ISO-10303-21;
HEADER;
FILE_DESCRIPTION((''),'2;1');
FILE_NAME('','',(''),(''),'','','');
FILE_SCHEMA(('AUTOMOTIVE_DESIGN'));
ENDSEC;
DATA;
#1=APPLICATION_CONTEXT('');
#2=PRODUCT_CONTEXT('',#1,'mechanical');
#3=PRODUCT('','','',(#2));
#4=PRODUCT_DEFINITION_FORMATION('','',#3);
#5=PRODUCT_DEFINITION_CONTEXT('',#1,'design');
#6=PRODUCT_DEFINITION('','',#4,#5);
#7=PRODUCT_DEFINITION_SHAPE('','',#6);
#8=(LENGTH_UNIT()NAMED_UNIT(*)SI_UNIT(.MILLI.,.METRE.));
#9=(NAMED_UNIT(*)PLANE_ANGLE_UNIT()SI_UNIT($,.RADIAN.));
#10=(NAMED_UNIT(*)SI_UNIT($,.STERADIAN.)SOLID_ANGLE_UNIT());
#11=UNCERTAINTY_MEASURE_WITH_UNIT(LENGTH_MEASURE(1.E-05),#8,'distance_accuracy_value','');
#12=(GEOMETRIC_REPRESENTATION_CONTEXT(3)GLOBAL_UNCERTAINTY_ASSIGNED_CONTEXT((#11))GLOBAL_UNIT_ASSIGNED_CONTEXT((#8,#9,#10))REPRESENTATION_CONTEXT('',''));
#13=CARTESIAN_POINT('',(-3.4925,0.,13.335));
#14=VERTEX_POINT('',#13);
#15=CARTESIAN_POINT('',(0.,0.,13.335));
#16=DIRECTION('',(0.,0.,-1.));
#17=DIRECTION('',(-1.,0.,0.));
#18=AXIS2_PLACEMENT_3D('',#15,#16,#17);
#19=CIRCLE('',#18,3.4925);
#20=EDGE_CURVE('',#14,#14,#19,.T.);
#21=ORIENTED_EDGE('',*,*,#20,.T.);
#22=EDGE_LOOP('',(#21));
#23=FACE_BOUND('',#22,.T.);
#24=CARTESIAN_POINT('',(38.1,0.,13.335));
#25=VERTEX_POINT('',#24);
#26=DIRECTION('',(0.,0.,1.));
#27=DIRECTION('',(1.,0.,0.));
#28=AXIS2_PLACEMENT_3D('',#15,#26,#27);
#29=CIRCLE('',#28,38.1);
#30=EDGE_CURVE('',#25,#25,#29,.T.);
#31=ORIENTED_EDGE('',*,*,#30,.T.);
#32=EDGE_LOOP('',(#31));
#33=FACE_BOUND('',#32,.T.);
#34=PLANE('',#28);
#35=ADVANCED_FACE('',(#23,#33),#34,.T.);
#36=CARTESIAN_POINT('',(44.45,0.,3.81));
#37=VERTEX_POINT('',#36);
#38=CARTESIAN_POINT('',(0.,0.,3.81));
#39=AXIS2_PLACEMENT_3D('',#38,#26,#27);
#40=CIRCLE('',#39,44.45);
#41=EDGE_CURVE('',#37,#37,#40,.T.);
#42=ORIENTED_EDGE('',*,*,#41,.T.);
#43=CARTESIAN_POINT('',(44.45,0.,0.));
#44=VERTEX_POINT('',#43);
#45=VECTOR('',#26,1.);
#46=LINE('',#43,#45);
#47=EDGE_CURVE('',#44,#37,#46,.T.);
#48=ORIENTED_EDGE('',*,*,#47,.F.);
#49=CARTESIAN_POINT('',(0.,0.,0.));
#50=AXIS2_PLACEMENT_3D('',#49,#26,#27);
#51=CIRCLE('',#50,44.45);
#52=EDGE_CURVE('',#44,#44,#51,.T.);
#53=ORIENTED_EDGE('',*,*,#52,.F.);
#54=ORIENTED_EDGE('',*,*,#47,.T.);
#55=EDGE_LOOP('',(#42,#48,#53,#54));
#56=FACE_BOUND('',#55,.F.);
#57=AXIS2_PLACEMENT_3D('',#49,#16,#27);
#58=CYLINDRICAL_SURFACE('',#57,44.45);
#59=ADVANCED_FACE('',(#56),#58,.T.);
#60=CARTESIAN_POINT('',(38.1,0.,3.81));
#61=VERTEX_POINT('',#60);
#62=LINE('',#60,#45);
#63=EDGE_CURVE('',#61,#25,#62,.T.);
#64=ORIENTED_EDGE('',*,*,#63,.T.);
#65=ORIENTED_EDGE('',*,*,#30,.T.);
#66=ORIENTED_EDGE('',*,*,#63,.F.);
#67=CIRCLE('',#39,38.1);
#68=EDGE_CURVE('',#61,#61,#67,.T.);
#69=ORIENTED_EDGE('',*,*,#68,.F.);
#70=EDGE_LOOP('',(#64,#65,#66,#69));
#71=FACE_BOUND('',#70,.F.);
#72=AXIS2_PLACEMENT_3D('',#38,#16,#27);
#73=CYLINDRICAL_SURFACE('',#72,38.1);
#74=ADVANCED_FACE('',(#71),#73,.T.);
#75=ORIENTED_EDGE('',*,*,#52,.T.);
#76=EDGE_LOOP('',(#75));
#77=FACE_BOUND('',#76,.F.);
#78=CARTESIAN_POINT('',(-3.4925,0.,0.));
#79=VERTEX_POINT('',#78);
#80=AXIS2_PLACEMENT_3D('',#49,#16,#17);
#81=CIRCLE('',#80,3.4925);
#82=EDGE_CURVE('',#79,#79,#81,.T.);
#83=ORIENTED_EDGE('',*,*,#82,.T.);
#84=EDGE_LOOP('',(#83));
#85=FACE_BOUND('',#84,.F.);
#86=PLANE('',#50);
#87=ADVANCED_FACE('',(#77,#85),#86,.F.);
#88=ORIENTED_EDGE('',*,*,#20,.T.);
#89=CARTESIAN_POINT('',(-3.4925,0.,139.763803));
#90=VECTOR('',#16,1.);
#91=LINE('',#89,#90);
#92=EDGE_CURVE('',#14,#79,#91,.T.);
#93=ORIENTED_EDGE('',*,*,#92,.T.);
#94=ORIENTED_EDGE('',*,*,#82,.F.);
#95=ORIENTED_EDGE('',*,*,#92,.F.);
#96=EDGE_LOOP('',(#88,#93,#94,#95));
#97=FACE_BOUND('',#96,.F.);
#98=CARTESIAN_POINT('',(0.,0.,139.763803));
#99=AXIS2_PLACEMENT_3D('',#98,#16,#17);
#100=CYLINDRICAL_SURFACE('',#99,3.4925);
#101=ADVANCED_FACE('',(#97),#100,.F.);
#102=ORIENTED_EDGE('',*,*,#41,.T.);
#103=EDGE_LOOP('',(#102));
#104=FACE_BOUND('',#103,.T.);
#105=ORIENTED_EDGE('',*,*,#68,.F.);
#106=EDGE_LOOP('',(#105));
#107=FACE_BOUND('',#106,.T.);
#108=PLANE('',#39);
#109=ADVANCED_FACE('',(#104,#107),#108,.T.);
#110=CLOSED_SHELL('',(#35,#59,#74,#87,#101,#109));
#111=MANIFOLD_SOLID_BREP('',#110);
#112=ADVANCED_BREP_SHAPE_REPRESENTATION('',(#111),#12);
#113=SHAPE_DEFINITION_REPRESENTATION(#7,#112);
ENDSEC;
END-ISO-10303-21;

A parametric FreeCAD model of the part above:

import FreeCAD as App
import Part
import Sketcher
from FreeCAD import Vector
Q = App.Units.Quantity

doc = App.newDocument("Part")
params = doc.addObject("Spreadsheet::Sheet", "Params")
for row, (alias, value) in enumerate([
    ("sketch1_diameter", "3.5 in"),
    ("pad1_length", "0.15 in"),
    ("sketch2_diameter", "3 in"),
    ("pad2_length", "0.375 in"),
    ("sketch3_diameter", "0.275 in"),
    ("hole_diameter", "0.275 in"),
], start=1):
    params.set(f"A{row}", alias)
    params.set(f"B{row}", "=" + value)
    params.setAlias(f"B{row}", alias)

body = doc.addObject("PartDesign::Body", "Body")

# Sketch on XY plane
sketch1 = body.newObject("Sketcher::SketchObject", "Sketch")
sketch1.AttachmentSupport = (doc.getObject("XY_Plane"), [""])
sketch1.MapMode = "FlatFace"
sketch1.addGeometry(Part.Circle(Vector(0, 0, 0), Vector(0, 0, 1), 44), False)
sketch1.addConstraint([
    Sketcher.Constraint("Coincident", 0, 3, -1, 1),
    Sketcher.Constraint("Diameter", 0, Q("3.5 in")),
])
sketch1.setExpression("Constraints[1]", "Params.sketch1_diameter")
pad1 = body.newObject("PartDesign::Pad", "Pad")
pad1.Profile = sketch1
pad1.setExpression("Length", "Params.pad1_length")

# Sketch on XY plane
sketch2 = body.newObject("Sketcher::SketchObject", "Sketch001")
sketch2.AttachmentSupport = (doc.getObject("XY_Plane"), [""])
sketch2.MapMode = "FlatFace"
sketch2.AttachmentOffset = App.Placement(Vector(0, 0, 0.15 * 25.4), App.Rotation())
sketch2.addGeometry(Part.Circle(Vector(0, 0, 0), Vector(0, 0, 1), 38), False)
sketch2.addConstraint([
    Sketcher.Constraint("Coincident", 0, 3, -1, 1),
    Sketcher.Constraint("Diameter", 0, Q("3 in")),
])
sketch2.setExpression("Constraints[1]", "Params.sketch2_diameter")
pad2 = body.newObject("PartDesign::Pad", "Pad001")
pad2.Profile = sketch2
pad2.setExpression("Length", "Params.pad2_length")

# Sketch on XY plane
sketch3 = body.newObject("Sketcher::SketchObject", "Sketch002")
sketch3.AttachmentSupport = (doc.getObject("XY_Plane"), [""])
sketch3.MapMode = "FlatFace"
sketch3.AttachmentOffset = App.Placement(Vector(0, 0, 0.525 * 25.4), App.Rotation())
sketch3.addGeometry(Part.Circle(Vector(0, 0, 0), Vector(0, 0, 1), 3.5), False)
sketch3.addConstraint([
    Sketcher.Constraint("Coincident", 0, 3, -1, 1),
    Sketcher.Constraint("Diameter", 0, Q("0.275 in")),
])
sketch3.setExpression("Constraints[1]", "Params.sketch3_diameter")
doc.recompute()
hole = body.newObject("PartDesign::Hole", "Hole")
hole.Profile = sketch3
hole.ThreadType = "None"
hole.setExpression("Diameter", "Params.hole_diameter")
hole.DepthType = "ThroughAll"

doc.recompute()
